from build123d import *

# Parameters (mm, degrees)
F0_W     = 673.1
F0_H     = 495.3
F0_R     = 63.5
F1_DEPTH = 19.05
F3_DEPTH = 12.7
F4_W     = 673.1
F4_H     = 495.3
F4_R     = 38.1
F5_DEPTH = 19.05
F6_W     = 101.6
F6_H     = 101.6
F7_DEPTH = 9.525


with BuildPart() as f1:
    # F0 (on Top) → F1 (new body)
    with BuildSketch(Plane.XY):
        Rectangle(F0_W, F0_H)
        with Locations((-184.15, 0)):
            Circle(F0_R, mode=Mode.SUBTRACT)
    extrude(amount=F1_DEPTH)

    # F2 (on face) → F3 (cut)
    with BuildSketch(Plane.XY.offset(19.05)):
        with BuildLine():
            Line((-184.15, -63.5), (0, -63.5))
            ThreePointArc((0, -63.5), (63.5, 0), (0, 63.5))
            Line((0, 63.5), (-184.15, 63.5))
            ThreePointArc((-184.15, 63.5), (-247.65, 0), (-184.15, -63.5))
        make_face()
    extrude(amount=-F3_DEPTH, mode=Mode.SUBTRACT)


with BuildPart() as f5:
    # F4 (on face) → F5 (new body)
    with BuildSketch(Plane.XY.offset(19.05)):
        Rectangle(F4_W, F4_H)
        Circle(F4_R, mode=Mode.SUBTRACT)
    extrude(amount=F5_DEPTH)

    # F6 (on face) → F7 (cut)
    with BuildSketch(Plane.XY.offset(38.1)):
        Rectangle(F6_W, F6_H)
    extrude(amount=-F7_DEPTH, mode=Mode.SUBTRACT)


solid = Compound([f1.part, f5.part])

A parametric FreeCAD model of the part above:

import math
import FreeCAD as App
import Part
import Sketcher
from FreeCAD import Vector
Q = App.Units.Quantity

doc = App.newDocument("Part")
body = doc.addObject("PartDesign::Body", "Body")

# Sketch on XY plane
sketch1 = body.newObject("Sketcher::SketchObject", "Sketch")
sketch1.AttachmentSupport = (doc.getObject("XY_Plane"), [""])
sketch1.MapMode = "FlatFace"
sketch1.addGeometry([
    Part.LineSegment(Vector(-336.55, 247.65, 0), Vector(-336.55, -247.65, 0)),  # 0
    Part.LineSegment(Vector(-336.55, -247.65, 0), Vector(336.55, -247.65, 0)),  # 1
    Part.LineSegment(Vector(336.55, -247.65, 0), Vector(336.55, 247.65, 0)),  # 2
    Part.LineSegment(Vector(336.55, 247.65, 0), Vector(-336.55, 247.65, 0)),  # 3
    Part.Circle(Vector(-184.15, 0, 0), Vector(0, 0, 1), 63.5),  # 4
], False)
sketch1.addConstraint([
    Sketcher.Constraint("Coincident", 0, 2, 1, 1),
    Sketcher.Constraint("Coincident", 1, 2, 2, 1),
    Sketcher.Constraint("Coincident", 2, 2, 3, 1),
    Sketcher.Constraint("Coincident", 3, 2, 0, 1),
    Sketcher.Constraint("Vertical", 0),
    Sketcher.Constraint("Horizontal", 1),
    Sketcher.Constraint("Vertical", 2),
    Sketcher.Constraint("Horizontal", 3),
    Sketcher.Constraint("Symmetric", 0, 2, 2, 2, -1, 1),
    Sketcher.Constraint("PointOnObject", 4, 3, -1),
    Sketcher.Constraint("Diameter", 4, Q("5 in")),
    Sketcher.Constraint("DistanceX", 1, 1, 1, 2, Q("26.5 in")),
    Sketcher.Constraint("DistanceY", 0, 2, 0, 1, Q("19.5 in")),
    Sketcher.Constraint("DistanceX", 0, 2, 4, 3, Q("6 in")),
])
pad1 = body.newObject("PartDesign::Pad", "Pad")
pad1.Profile = sketch1
pad1.Length = Q("0.75 in")

# Sketch on XY plane
sketch2 = body.newObject("Sketcher::SketchObject", "Sketch001")
sketch2.AttachmentSupport = (doc.getObject("XY_Plane"), [""])
sketch2.MapMode = "FlatFace"
sketch2.AttachmentOffset = App.Placement(Vector(0, 0, 0.75 * 25.4), App.Rotation())
sketch2.addGeometry([
    Part.LineSegment(Vector(-184.15, -63.5, 0), Vector(0, -63.5, 0)),
    Part.ArcOfCircle(Part.Circle(Vector(0, 0, 0), Vector(0, 0, 1), 63.5), math.radians(-90), math.radians(90)),
    Part.LineSegment(Vector(0, 63.5, 0), Vector(-184.15, 63.5, 0)),
    Part.ArcOfCircle(Part.Circle(Vector(-184.15, 0, 0), Vector(0, 0, 1), 63.5), math.radians(90), math.radians(270)),
], False)
sketch2.addConstraint([
    Sketcher.Constraint("Tangent", 0, 2, 1, 1),
    Sketcher.Constraint("Tangent", 1, 2, 2, 1),
    Sketcher.Constraint("Tangent", 2, 2, 3, 1),
    Sketcher.Constraint("Tangent", 3, 2, 0, 1),
    Sketcher.Constraint("Horizontal", 0),
    Sketcher.Constraint("Horizontal", 2),
    Sketcher.Constraint("Coincident", 1, 3, -1, 1),
    Sketcher.Constraint("Radius", 1, Q("2.5 in")),
    Sketcher.Constraint("DistanceX", 0, 1, 0, 2, Q("7.25 in")),
])
pocket1 = body.newObject("PartDesign::Pocket", "Pocket")
pocket1.Profile = sketch2
pocket1.Length = Q("0.5 in")
body2 = doc.addObject("PartDesign::Body", "Body001")

# Sketch on XY plane
sketch3 = body2.newObject("Sketcher::SketchObject", "Sketch002")
sketch3.AttachmentSupport = (doc.getObject("XY_Plane001"), [""])
sketch3.MapMode = "FlatFace"
sketch3.AttachmentOffset = App.Placement(Vector(0, 0, 0.75 * 25.4), App.Rotation())
sketch3.addGeometry([
    Part.LineSegment(Vector(-336.55, 247.65, 0), Vector(-336.55, -247.65, 0)),  # 0
    Part.LineSegment(Vector(-336.55, -247.65, 0), Vector(336.55, -247.65, 0)),  # 1
    Part.LineSegment(Vector(336.55, -247.65, 0), Vector(336.55, 247.65, 0)),  # 2
    Part.LineSegment(Vector(336.55, 247.65, 0), Vector(-336.55, 247.65, 0)),  # 3
    Part.Circle(Vector(0, 0, 0), Vector(0, 0, 1), 38.1),  # 4
], False)
sketch3.addConstraint([
    Sketcher.Constraint("Coincident", 0, 2, 1, 1),
    Sketcher.Constraint("Coincident", 1, 2, 2, 1),
    Sketcher.Constraint("Coincident", 2, 2, 3, 1),
    Sketcher.Constraint("Coincident", 3, 2, 0, 1),
    Sketcher.Constraint("Vertical", 0),
    Sketcher.Constraint("Horizontal", 1),
    Sketcher.Constraint("Vertical", 2),
    Sketcher.Constraint("Horizontal", 3),
    Sketcher.Constraint("Coincident", 4, 3, -1, 1),
    Sketcher.Constraint("Symmetric", 0, 2, 2, 2, -1, 1),
    Sketcher.Constraint("Diameter", 4, Q("3 in")),
    Sketcher.Constraint("DistanceX", 1, 1, 1, 2, Q("26.5 in")),
    Sketcher.Constraint("DistanceY", 0, 2, 0, 1, Q("19.5 in")),
])
pad2 = body2.newObject("PartDesign::Pad", "Pad001")
pad2.Profile = sketch3
pad2.Length = Q("0.75 in")

# Sketch on XY plane
sketch4 = body2.newObject("Sketcher::SketchObject", "Sketch003")
sketch4.AttachmentSupport = (doc.getObject("XY_Plane001"), [""])
sketch4.MapMode = "FlatFace"
sketch4.AttachmentOffset = App.Placement(Vector(0, 0, 1.5 * 25.4), App.Rotation())
sketch4.addGeometry([
    Part.LineSegment(Vector(-50.8, 50.8, 0), Vector(-50.8, -50.8, 0)),
    Part.LineSegment(Vector(-50.8, -50.8, 0), Vector(50.8, -50.8, 0)),
    Part.LineSegment(Vector(50.8, -50.8, 0), Vector(50.8, 50.8, 0)),
    Part.LineSegment(Vector(50.8, 50.8, 0), Vector(-50.8, 50.8, 0)),
], False)
sketch4.addConstraint([
    Sketcher.Constraint("Coincident", 0, 2, 1, 1),
    Sketcher.Constraint("Coincident", 1, 2, 2, 1),
    Sketcher.Constraint("Coincident", 2, 2, 3, 1),
    Sketcher.Constraint("Coincident", 3, 2, 0, 1),
    Sketcher.Constraint("Vertical", 0),
    Sketcher.Constraint("Horizontal", 1),
    Sketcher.Constraint("Vertical", 2),
    Sketcher.Constraint("Horizontal", 3),
    Sketcher.Constraint("Symmetric", 0, 2, 2, 2, -1, 1),
    Sketcher.Constraint("Equal", 3, 0),
    Sketcher.Constraint("DistanceX", 1, 1, 1, 2, Q("4 in")),
])
pocket2 = body2.newObject("PartDesign::Pocket", "Pocket001")
pocket2.Profile = sketch4
pocket2.Length = Q("0.375 in")

doc.recompute()
